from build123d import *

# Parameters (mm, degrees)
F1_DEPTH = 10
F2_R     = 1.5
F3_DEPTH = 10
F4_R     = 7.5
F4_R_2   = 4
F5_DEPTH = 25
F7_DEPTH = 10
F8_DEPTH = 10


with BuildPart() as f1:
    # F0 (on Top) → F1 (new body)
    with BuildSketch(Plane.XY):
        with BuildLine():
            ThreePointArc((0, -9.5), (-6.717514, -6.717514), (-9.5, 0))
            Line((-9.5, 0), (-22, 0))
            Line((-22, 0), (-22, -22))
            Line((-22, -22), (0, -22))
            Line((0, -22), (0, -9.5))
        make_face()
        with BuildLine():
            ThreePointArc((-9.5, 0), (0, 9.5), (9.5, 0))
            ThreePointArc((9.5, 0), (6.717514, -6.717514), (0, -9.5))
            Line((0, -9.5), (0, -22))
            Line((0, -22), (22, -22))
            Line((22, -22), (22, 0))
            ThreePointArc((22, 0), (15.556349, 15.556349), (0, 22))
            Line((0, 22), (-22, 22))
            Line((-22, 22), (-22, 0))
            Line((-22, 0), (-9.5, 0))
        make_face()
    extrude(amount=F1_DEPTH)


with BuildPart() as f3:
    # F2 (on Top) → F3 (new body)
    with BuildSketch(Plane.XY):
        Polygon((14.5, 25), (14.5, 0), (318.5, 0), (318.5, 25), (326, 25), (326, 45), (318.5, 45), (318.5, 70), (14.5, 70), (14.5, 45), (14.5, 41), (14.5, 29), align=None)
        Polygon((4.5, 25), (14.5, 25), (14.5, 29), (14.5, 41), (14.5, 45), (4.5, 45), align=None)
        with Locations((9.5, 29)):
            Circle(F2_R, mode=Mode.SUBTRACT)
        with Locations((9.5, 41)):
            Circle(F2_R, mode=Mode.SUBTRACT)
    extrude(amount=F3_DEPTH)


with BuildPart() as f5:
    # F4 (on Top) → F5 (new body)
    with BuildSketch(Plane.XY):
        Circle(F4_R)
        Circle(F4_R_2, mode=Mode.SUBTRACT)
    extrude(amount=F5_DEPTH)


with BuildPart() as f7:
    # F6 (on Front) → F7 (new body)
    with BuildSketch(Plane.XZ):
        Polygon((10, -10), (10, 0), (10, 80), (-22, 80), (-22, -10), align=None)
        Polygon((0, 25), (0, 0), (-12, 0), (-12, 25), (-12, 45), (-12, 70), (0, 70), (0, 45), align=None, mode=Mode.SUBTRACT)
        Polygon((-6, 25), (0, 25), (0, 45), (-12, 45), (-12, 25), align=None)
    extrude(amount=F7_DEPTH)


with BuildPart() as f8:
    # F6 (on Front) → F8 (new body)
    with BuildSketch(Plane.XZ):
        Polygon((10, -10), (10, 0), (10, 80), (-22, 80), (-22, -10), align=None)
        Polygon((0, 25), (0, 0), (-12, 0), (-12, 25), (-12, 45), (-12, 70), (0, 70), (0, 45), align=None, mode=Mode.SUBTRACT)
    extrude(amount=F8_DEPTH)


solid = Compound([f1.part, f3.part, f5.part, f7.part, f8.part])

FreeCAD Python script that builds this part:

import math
import FreeCAD as App
import Part
import Sketcher
from FreeCAD import Vector
Q = App.Units.Quantity

doc = App.newDocument("Part")
body = doc.addObject("PartDesign::Body", "Body")

sketch1 = doc.addObject("Sketcher::SketchObject", "Sketch")
body.addObject(sketch1)
sketch1.AttachmentSupport = (doc.XY_Plane, [""])
sketch1.MapMode = "FlatFace"
sketch1.addGeometry(Part.LineSegment(Vector(-22, -22, 0), Vector(22, -22, 0)), False)
sketch1.addGeometry(Part.LineSegment(Vector(22, -22, 0), Vector(22, 0, 0)), False)
sketch1.addGeometry(Part.ArcOfCircle(Part.Circle(Vector(0, 0, 0), Vector(0, 0, 1), 22), math.radians(0), math.radians(90)), False)
sketch1.addGeometry(Part.LineSegment(Vector(0, 22, 0), Vector(-22, 22, 0)), False)
sketch1.addGeometry(Part.LineSegment(Vector(-22, 22, 0), Vector(-22, -22, 0)), False)
sketch1.addGeometry(Part.ArcOfCircle(Part.Circle(Vector(0, 0, 0), Vector(0, 0, 1), 10), math.radians(-180), math.radians(-90)), False)
sketch1.addGeometry(Part.ArcOfCircle(Part.Circle(Vector(0, 0, 0), Vector(0, 0, 1), 10), math.radians(0), math.radians(180)), False)
sketch1.addGeometry(Part.ArcOfCircle(Part.Circle(Vector(0, 0, 0), Vector(0, 0, 1), 10), math.radians(-90), math.radians(0)), False)
sketch1.addConstraint(Sketcher.Constraint("Coincident", 0, 2, 1, 1))
sketch1.addConstraint(Sketcher.Constraint("Tangent", 1, 2, 2, 1))
sketch1.addConstraint(Sketcher.Constraint("Tangent", 2, 2, 3, 1))
sketch1.addConstraint(Sketcher.Constraint("Coincident", 3, 2, 4, 1))
sketch1.addConstraint(Sketcher.Constraint("Coincident", 4, 2, 0, 1))
sketch1.addConstraint(Sketcher.Constraint("Tangent", 5, 1, 6, 2))
sketch1.addConstraint(Sketcher.Constraint("Tangent", 6, 1, 7, 2))
sketch1.addConstraint(Sketcher.Constraint("Tangent", 7, 1, 5, 2))
sketch1.addConstraint(Sketcher.Constraint("Horizontal", 0))
sketch1.addConstraint(Sketcher.Constraint("Vertical", 1))
sketch1.addConstraint(Sketcher.Constraint("Horizontal", 3))
sketch1.addConstraint(Sketcher.Constraint("Vertical", 4))
sketch1.addConstraint(Sketcher.Constraint("Coincident", 2, 3, -1, 1))
sketch1.addConstraint(Sketcher.Constraint("Coincident", 5, 3, -1, 1))
sketch1.addConstraint(Sketcher.Constraint("Symmetric", 0, 2, 3, 2, -1, 1))
sketch1.addConstraint(Sketcher.Constraint("PointOnObject", 5, 1, -1))
sketch1.addConstraint(Sketcher.Constraint("PointOnObject", 6, 1, -1))
sketch1.addConstraint(Sketcher.Constraint("PointOnObject", 7, 1, -2))
sketch1.addConstraint(Sketcher.Constraint("Radius", 2, Q("22.000001 mm")))
sketch1.addConstraint(Sketcher.Constraint("Radius", 5, Q("9.500001 mm")))
pad1 = doc.addObject("PartDesign::Pad", "Pad")
body.addObject(pad1)
pad1.Profile = sketch1
pad1.Length = 10
body2 = doc.addObject("PartDesign::Body", "Body001")

sketch2 = doc.addObject("Sketcher::SketchObject", "Sketch001")
body2.addObject(sketch2)
sketch2.AttachmentSupport = (doc.getObject("XY_Plane001"), [""])
sketch2.MapMode = "FlatFace"
sketch2.addGeometry(Part.LineSegment(Vector(14.5, 0, 0), Vector(318.5, 0, 0)), False)
sketch2.addGeometry(Part.LineSegment(Vector(318.5, 0, 0), Vector(318.5, 25, 0)), False)
sketch2.addGeometry(Part.LineSegment(Vector(318.5, 25, 0), Vector(326, 25, 0)), False)
sketch2.addGeometry(Part.LineSegment(Vector(326, 25, 0), Vector(326, 45, 0)), False)
sketch2.addGeometry(Part.LineSegment(Vector(326, 45, 0), Vector(318.5, 45, 0)), False)
sketch2.addGeometry(Part.LineSegment(Vector(318.5, 45, 0), Vector(318.5, 70, 0)), False)
sketch2.addGeometry(Part.LineSegment(Vector(318.5, 70, 0), Vector(14.5, 70, 0)), False)
sketch2.addGeometry(Part.LineSegment(Vector(14.5, 70, 0), Vector(14.5, 45, 0)), False)
sketch2.addGeometry(Part.LineSegment(Vector(14.5, 45, 0), Vector(4.5, 45, 0)), False)
sketch2.addGeometry(Part.LineSegment(Vector(4.5, 45, 0), Vector(4.5, 25, 0)), False)
sketch2.addGeometry(Part.LineSegment(Vector(4.5, 25, 0), Vector(14.5, 25, 0)), False)
sketch2.addGeometry(Part.LineSegment(Vector(14.5, 25, 0), Vector(14.5, 0, 0)), False)
sketch2.addGeometry(Part.Circle(Vector(9.5, 29, 0), Vector(0, 0, 1), 1.5), False)
sketch2.addGeometry(Part.Circle(Vector(9.5, 41, 0), Vector(0, 0, 1), 1.5), False)
sketch2.addConstraint(Sketcher.Constraint("Coincident", 0, 2, 1, 1))
sketch2.addConstraint(Sketcher.Constraint("Coincident", 1, 2, 2, 1))
sketch2.addConstraint(Sketcher.Constraint("Coincident", 2, 2, 3, 1))
sketch2.addConstraint(Sketcher.Constraint("Coincident", 3, 2, 4, 1))
sketch2.addConstraint(Sketcher.Constraint("Coincident", 4, 2, 5, 1))
sketch2.addConstraint(Sketcher.Constraint("Coincident", 5, 2, 6, 1))
sketch2.addConstraint(Sketcher.Constraint("Coincident", 6, 2, 7, 1))
sketch2.addConstraint(Sketcher.Constraint("Coincident", 7, 2, 8, 1))
sketch2.addConstraint(Sketcher.Constraint("Coincident", 8, 2, 9, 1))
sketch2.addConstraint(Sketcher.Constraint("Coincident", 9, 2, 10, 1))
sketch2.addConstraint(Sketcher.Constraint("Coincident", 10, 2, 11, 1))
sketch2.addConstraint(Sketcher.Constraint("Coincident", 11, 2, 0, 1))
sketch2.addConstraint(Sketcher.Constraint("Horizontal", 0))
sketch2.addConstraint(Sketcher.Constraint("Vertical", 1))
sketch2.addConstraint(Sketcher.Constraint("Horizontal", 2))
sketch2.addConstraint(Sketcher.Constraint("Vertical", 3))
sketch2.addConstraint(Sketcher.Constraint("Horizontal", 4))
sketch2.addConstraint(Sketcher.Constraint("Vertical", 5))
sketch2.addConstraint(Sketcher.Constraint("Horizontal", 6))
sketch2.addConstraint(Sketcher.Constraint("Vertical", 7))
sketch2.addConstraint(Sketcher.Constraint("Horizontal", 8))
sketch2.addConstraint(Sketcher.Constraint("Vertical", 9))
sketch2.addConstraint(Sketcher.Constraint("Horizontal", 10))
sketch2.addConstraint(Sketcher.Constraint("Vertical", 11))
sketch2.addConstraint(Sketcher.Constraint("Equal", 12, 13))
sketch2.addConstraint(Sketcher.Constraint("PointOnObject", 0, 2, -1))
sketch2.addConstraint(Sketcher.Constraint("Horizontal", 4, 2, 7, 2))
sketch2.addConstraint(Sketcher.Constraint("Horizontal", 2, 2, 9, 2))
sketch2.addConstraint(Sketcher.Constraint("Vertical", 12, 3, 13, 3))
sketch2.addConstraint(Sketcher.Constraint("Vertical", 1, 2, 4, 2))
sketch2.addConstraint(Sketcher.Constraint("Vertical", 7, 2, 10, 2))
sketch2.addConstraint(Sketcher.Constraint("Equal", 1, 5))
sketch2.addConstraint(Sketcher.Constraint("Diameter", 12, Q("3 mm")))
sketch2.addConstraint(Sketcher.Constraint("DistanceX", 0, 1, 0, 2, Q("304 mm")))
sketch2.addConstraint(Sketcher.Constraint("DistanceX", 8, 2, 8, 1, Q("10 mm")))
sketch2.addConstraint(Sketcher.Constraint("DistanceY", 1, 1, 1, 2, Q("25 mm")))
sketch2.addConstraint(Sketcher.Constraint("DistanceY", 3, 1, 3, 2, Q("20 mm")))
sketch2.addConstraint(Sketcher.Constraint("DistanceX", 2, 1, 2, 2, Q("7.5 mm")))
sketch2.addConstraint(Sketcher.Constraint("DistanceY", -1, 1, 12, 3, Q("29 mm")))
sketch2.addConstraint(Sketcher.Constraint("DistanceY", -1, 1, 13, 3, Q("41 mm")))
sketch2.addConstraint(Sketcher.Constraint("DistanceX", -1, 1, 2, 2, Q("326 mm")))
sketch2.addConstraint(Sketcher.Constraint("DistanceX", 12, 3, 0, 2, Q("309 mm")))
pad2 = doc.addObject("PartDesign::Pad", "Pad001")
body2.addObject(pad2)
pad2.Profile = sketch2
pad2.Length = 10
body3 = doc.addObject("PartDesign::Body", "Body002")

sketch3 = doc.addObject("Sketcher::SketchObject", "Sketch002")
body3.addObject(sketch3)
sketch3.AttachmentSupport = (doc.getObject("XY_Plane002"), [""])
sketch3.MapMode = "FlatFace"
sketch3.addGeometry(Part.Circle(Vector(0, 0, 0), Vector(0, 0, 1), 7.5), False)
sketch3.addGeometry(Part.Circle(Vector(0, 0, 0), Vector(0, 0, 1), 4), False)
sketch3.addConstraint(Sketcher.Constraint("Coincident", 0, 3, -1, 1))
sketch3.addConstraint(Sketcher.Constraint("Coincident", 1, 3, -1, 1))
sketch3.addConstraint(Sketcher.Constraint("Diameter", 0, Q("15 mm")))
sketch3.addConstraint(Sketcher.Constraint("Diameter", 1, Q("8 mm")))
pad3 = doc.addObject("PartDesign::Pad", "Pad002")
body3.addObject(pad3)
pad3.Profile = sketch3
pad3.Length = 25
body4 = doc.addObject("PartDesign::Body", "Body003")

sketch4 = doc.addObject("Sketcher::SketchObject", "Sketch003")
body4.addObject(sketch4)
sketch4.AttachmentSupport = (doc.getObject("XZ_Plane003"), [""])
sketch4.MapMode = "FlatFace"
sketch4.addGeometry(Part.LineSegment(Vector(10, -10, 0), Vector(10, 80, 0)), False)
sketch4.addGeometry(Part.LineSegment(Vector(10, 80, 0), Vector(-22, 80, 0)), False)
sketch4.addGeometry(Part.LineSegment(Vector(-22, 80, 0), Vector(-22, -10, 0)), False)
sketch4.addGeometry(Part.LineSegment(Vector(-22, -10, 0), Vector(10, -10, 0)), False)
sketch4.addGeometry(Part.LineSegment(Vector(0, 70, 0), Vector(0, 45, 0)), False)
sketch4.addGeometry(Part.LineSegment(Vector(0, 45, 0), Vector(-12, 45, 0)), False)
sketch4.addGeometry(Part.LineSegment(Vector(-12, 45, 0), Vector(-12, 70, 0)), False)
sketch4.addGeometry(Part.LineSegment(Vector(-12, 70, 0), Vector(0, 70, 0)), False)
sketch4.addGeometry(Part.LineSegment(Vector(0, 25, 0), Vector(0, 0, 0)), False)
sketch4.addGeometry(Part.LineSegment(Vector(0, 0, 0), Vector(-12, 0, 0)), False)
sketch4.addGeometry(Part.LineSegment(Vector(-12, 0, 0), Vector(-12, 25, 0)), False)
sketch4.addGeometry(Part.LineSegment(Vector(-12, 25, 0), Vector(0, 25, 0)), False)
sketch4.addConstraint(Sketcher.Constraint("Coincident", 0, 2, 1, 1))
sketch4.addConstraint(Sketcher.Constraint("Coincident", 1, 2, 2, 1))
sketch4.addConstraint(Sketcher.Constraint("Coincident", 2, 2, 3, 1))
sketch4.addConstraint(Sketcher.Constraint("Coincident", 3, 2, 0, 1))
sketch4.addConstraint(Sketcher.Constraint("Coincident", 4, 2, 5, 1))
sketch4.addConstraint(Sketcher.Constraint("Coincident", 5, 2, 6, 1))
sketch4.addConstraint(Sketcher.Constraint("Coincident", 6, 2, 7, 1))
sketch4.addConstraint(Sketcher.Constraint("Coincident", 7, 2, 4, 1))
sketch4.addConstraint(Sketcher.Constraint("Coincident", 8, 2, 9, 1))
sketch4.addConstraint(Sketcher.Constraint("Coincident", 9, 2, 10, 1))
sketch4.addConstraint(Sketcher.Constraint("Coincident", 10, 2, 11, 1))
sketch4.addConstraint(Sketcher.Constraint("Coincident", 11, 2, 8, 1))
sketch4.addConstraint(Sketcher.Constraint("Vertical", 0))
sketch4.addConstraint(Sketcher.Constraint("Horizontal", 1))
sketch4.addConstraint(Sketcher.Constraint("Vertical", 2))
sketch4.addConstraint(Sketcher.Constraint("Horizontal", 3))
sketch4.addConstraint(Sketcher.Constraint("Vertical", 4))
sketch4.addConstraint(Sketcher.Constraint("Horizontal", 5))
sketch4.addConstraint(Sketcher.Constraint("Vertical", 6))
sketch4.addConstraint(Sketcher.Constraint("Horizontal", 7))
sketch4.addConstraint(Sketcher.Constraint("Vertical", 8))
sketch4.addConstraint(Sketcher.Constraint("Horizontal", 9))
sketch4.addConstraint(Sketcher.Constraint("Vertical", 10))
sketch4.addConstraint(Sketcher.Constraint("Horizontal", 11))
sketch4.addConstraint(Sketcher.Constraint("Coincident", 8, 2, -1, 1))
sketch4.addConstraint(Sketcher.Constraint("PointOnObject", 4, 2, -2))
sketch4.addConstraint(Sketcher.Constraint("Vertical", 6, 2, 9, 2))
sketch4.addConstraint(Sketcher.Constraint("Equal", 6, 8))
sketch4.addConstraint(Sketcher.Constraint("DistanceX", 1, 2, 1, 1, Q("32 mm")))
sketch4.addConstraint(Sketcher.Constraint("DistanceX", 5, 2, 5, 1, Q("12 mm")))
sketch4.addConstraint(Sketcher.Constraint("DistanceY", 0, 1, 0, 2, Q("90 mm")))
sketch4.addConstraint(Sketcher.Constraint("DistanceY", 4, 2, 4, 1, Q("25 mm")))
sketch4.addConstraint(Sketcher.Constraint("DistanceX", -1, 1, 0, 2, Q("10 mm")))
sketch4.addConstraint(Sketcher.Constraint("DistanceY", -1, 1, 0, 2, Q("80 mm")))
sketch4.addConstraint(Sketcher.Constraint("DistanceY", -1, 1, 4, 2, Q("45 mm")))
pad4 = doc.addObject("PartDesign::Pad", "Pad003")
body4.addObject(pad4)
pad4.Profile = sketch4
pad4.Length = 10
body5 = doc.addObject("PartDesign::Body", "Body004")

sketch5 = doc.addObject("Sketcher::SketchObject", "Sketch004")
body5.addObject(sketch5)
sketch5.AttachmentSupport = (doc.getObject("XZ_Plane004"), [""])
sketch5.MapMode = "FlatFace"
sketch5.addGeometry(Part.LineSegment(Vector(10, -10, 0), Vector(10, 80, 0)), False)
sketch5.addGeometry(Part.LineSegment(Vector(10, 80, 0), Vector(-22, 80, 0)), False)
sketch5.addGeometry(Part.LineSegment(Vector(-22, 80, 0), Vector(-22, -10, 0)), False)
sketch5.addGeometry(Part.LineSegment(Vector(-22, -10, 0), Vector(10, -10, 0)), False)
sketch5.addGeometry(Part.LineSegment(Vector(0, 70, 0), Vector(0, 0, 0)), False)
sketch5.addGeometry(Part.LineSegment(Vector(0, 0, 0), Vector(-12, 0, 0)), False)
sketch5.addGeometry(Part.LineSegment(Vector(-12, 0, 0), Vector(-12, 70, 0)), False)
sketch5.addGeometry(Part.LineSegment(Vector(-12, 70, 0), Vector(0, 70, 0)), False)
sketch5.addConstraint(Sketcher.Constraint("Coincident", 0, 2, 1, 1))
sketch5.addConstraint(Sketcher.Constraint("Coincident", 1, 2, 2, 1))
sketch5.addConstraint(Sketcher.Constraint("Coincident", 2, 2, 3, 1))
sketch5.addConstraint(Sketcher.Constraint("Coincident", 3, 2, 0, 1))
sketch5.addConstraint(Sketcher.Constraint("Coincident", 4, 2, 5, 1))
sketch5.addConstraint(Sketcher.Constraint("Coincident", 5, 2, 6, 1))
sketch5.addConstraint(Sketcher.Constraint("Coincident", 6, 2, 7, 1))
sketch5.addConstraint(Sketcher.Constraint("Coincident", 7, 2, 4, 1))
sketch5.addConstraint(Sketcher.Constraint("Vertical", 0))
sketch5.addConstraint(Sketcher.Constraint("Horizontal", 1))
sketch5.addConstraint(Sketcher.Constraint("Vertical", 2))
sketch5.addConstraint(Sketcher.Constraint("Horizontal", 3))
sketch5.addConstraint(Sketcher.Constraint("Vertical", 4))
sketch5.addConstraint(Sketcher.Constraint("Horizontal", 5))
sketch5.addConstraint(Sketcher.Constraint("Vertical", 6))
sketch5.addConstraint(Sketcher.Constraint("Horizontal", 7))
sketch5.addConstraint(Sketcher.Constraint("Coincident", 4, 2, -1, 1))
sketch5.addConstraint(Sketcher.Constraint("DistanceX", 1, 2, 1, 1, Q("32 mm")))
sketch5.addConstraint(Sketcher.Constraint("DistanceX", 5, 2, 5, 1, Q("12 mm")))
sketch5.addConstraint(Sketcher.Constraint("DistanceY", 0, 1, 0, 2, Q("90 mm")))
sketch5.addConstraint(Sketcher.Constraint("DistanceY", 4, 2, 4, 1, Q("70 mm")))
sketch5.addConstraint(Sketcher.Constraint("DistanceX", -1, 1, 0, 2, Q("10 mm")))
sketch5.addConstraint(Sketcher.Constraint("DistanceY", -1, 1, 0, 2, Q("80 mm")))
pad5 = doc.addObject("PartDesign::Pad", "Pad004")
body5.addObject(pad5)
pad5.Profile = sketch5
pad5.Length = 10

doc.recompute()
